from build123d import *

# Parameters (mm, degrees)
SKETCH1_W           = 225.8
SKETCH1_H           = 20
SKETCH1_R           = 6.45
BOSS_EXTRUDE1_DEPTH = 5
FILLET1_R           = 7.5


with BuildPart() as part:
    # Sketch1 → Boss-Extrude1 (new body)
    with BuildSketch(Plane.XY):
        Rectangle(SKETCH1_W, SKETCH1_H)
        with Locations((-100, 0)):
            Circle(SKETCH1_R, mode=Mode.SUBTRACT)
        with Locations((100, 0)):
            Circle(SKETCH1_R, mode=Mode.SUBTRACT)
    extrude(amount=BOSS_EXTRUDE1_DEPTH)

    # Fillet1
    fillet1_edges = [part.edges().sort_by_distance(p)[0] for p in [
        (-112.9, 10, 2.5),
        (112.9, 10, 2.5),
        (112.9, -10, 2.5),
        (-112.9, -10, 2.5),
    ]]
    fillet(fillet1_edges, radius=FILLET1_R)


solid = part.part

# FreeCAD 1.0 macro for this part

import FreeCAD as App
import Part
import Sketcher


def edges_at(feature, points):
    """Names of the edges that pass closest to the given points."""
    edges = feature.Shape.Edges
    near = lambda p: min(range(len(edges)), key=lambda i: edges[i].distToShape(Part.Vertex(*p))[0])
    return sorted({f"Edge{near(p) + 1}" for p in points})


def add_polygon(sketch, points):
    """Adds a closed chain of lines whose ends are joined by coincident constraints."""
    first, n = sketch.GeometryCount, len(points)
    for a, b in zip(points, points[1:] + points[:1]):
        sketch.addGeometry(Part.LineSegment(App.Vector(*a, 0), App.Vector(*b, 0)), False)
    for i in range(n):
        sketch.addConstraint(Sketcher.Constraint("Coincident", first + i, 2, first + (i + 1) % n, 1))

doc = App.newDocument("Part")
body = doc.addObject("PartDesign::Body", "Body")

# Sketch on XY plane
sketch1 = body.newObject("Sketcher::SketchObject", "Sketch")
sketch1.AttachmentSupport = (doc.getObject("XY_Plane"), [""])
sketch1.MapMode = "FlatFace"
add_polygon(sketch1, [(-113, 10), (-113, -10), (113, -10), (113, 10)])  # lines 0-3
sketch1.addGeometry(Part.Circle(App.Vector(-100, 0, 0), App.Vector(0, 0, 1), 6), False)  # 4
sketch1.addGeometry(Part.Circle(App.Vector(100, 0, 0), App.Vector(0, 0, 1), 6), False)  # 5
sketch1.addConstraint(Sketcher.Constraint("Vertical", 0))
sketch1.addConstraint(Sketcher.Constraint("Horizontal", 1))
sketch1.addConstraint(Sketcher.Constraint("Vertical", 2))
sketch1.addConstraint(Sketcher.Constraint("Horizontal", 3))
sketch1.addConstraint(Sketcher.Constraint("Equal", 4, 5))
sketch1.addConstraint(Sketcher.Constraint("Symmetric", 4, 3, 5, 3, -1, 1))
sketch1.addConstraint(Sketcher.Constraint("Symmetric", 0, 2, 2, 2, -1, 1))
sketch1.addConstraint(Sketcher.Constraint("PointOnObject", 4, 3, -1))
sketch1.addConstraint(Sketcher.Constraint("Diameter", 4, 12.9))
sketch1.addConstraint(Sketcher.Constraint("DistanceY", 0, 2, 0, 1, 20.0))
sketch1.addConstraint(Sketcher.Constraint("DistanceX", 1, 1, 1, 2, 225.8))
sketch1.addConstraint(Sketcher.Constraint("DistanceX", 4, 3, -1, 1, 100.0))
pad1 = body.newObject("PartDesign::Pad", "Pad")
pad1.Profile = sketch1
pad1.Length = 5
doc.recompute()

fillet = body.newObject("PartDesign::Fillet", "Fillet")
fillet.Base = (pad1, edges_at(pad1, [
    (-112.9, 10, 2.5),
    (112.9, 10, 2.5),
    (112.9, -10, 2.5),
    (-112.9, -10, 2.5),
]))
fillet.Radius = 7.5

doc.recompute()
